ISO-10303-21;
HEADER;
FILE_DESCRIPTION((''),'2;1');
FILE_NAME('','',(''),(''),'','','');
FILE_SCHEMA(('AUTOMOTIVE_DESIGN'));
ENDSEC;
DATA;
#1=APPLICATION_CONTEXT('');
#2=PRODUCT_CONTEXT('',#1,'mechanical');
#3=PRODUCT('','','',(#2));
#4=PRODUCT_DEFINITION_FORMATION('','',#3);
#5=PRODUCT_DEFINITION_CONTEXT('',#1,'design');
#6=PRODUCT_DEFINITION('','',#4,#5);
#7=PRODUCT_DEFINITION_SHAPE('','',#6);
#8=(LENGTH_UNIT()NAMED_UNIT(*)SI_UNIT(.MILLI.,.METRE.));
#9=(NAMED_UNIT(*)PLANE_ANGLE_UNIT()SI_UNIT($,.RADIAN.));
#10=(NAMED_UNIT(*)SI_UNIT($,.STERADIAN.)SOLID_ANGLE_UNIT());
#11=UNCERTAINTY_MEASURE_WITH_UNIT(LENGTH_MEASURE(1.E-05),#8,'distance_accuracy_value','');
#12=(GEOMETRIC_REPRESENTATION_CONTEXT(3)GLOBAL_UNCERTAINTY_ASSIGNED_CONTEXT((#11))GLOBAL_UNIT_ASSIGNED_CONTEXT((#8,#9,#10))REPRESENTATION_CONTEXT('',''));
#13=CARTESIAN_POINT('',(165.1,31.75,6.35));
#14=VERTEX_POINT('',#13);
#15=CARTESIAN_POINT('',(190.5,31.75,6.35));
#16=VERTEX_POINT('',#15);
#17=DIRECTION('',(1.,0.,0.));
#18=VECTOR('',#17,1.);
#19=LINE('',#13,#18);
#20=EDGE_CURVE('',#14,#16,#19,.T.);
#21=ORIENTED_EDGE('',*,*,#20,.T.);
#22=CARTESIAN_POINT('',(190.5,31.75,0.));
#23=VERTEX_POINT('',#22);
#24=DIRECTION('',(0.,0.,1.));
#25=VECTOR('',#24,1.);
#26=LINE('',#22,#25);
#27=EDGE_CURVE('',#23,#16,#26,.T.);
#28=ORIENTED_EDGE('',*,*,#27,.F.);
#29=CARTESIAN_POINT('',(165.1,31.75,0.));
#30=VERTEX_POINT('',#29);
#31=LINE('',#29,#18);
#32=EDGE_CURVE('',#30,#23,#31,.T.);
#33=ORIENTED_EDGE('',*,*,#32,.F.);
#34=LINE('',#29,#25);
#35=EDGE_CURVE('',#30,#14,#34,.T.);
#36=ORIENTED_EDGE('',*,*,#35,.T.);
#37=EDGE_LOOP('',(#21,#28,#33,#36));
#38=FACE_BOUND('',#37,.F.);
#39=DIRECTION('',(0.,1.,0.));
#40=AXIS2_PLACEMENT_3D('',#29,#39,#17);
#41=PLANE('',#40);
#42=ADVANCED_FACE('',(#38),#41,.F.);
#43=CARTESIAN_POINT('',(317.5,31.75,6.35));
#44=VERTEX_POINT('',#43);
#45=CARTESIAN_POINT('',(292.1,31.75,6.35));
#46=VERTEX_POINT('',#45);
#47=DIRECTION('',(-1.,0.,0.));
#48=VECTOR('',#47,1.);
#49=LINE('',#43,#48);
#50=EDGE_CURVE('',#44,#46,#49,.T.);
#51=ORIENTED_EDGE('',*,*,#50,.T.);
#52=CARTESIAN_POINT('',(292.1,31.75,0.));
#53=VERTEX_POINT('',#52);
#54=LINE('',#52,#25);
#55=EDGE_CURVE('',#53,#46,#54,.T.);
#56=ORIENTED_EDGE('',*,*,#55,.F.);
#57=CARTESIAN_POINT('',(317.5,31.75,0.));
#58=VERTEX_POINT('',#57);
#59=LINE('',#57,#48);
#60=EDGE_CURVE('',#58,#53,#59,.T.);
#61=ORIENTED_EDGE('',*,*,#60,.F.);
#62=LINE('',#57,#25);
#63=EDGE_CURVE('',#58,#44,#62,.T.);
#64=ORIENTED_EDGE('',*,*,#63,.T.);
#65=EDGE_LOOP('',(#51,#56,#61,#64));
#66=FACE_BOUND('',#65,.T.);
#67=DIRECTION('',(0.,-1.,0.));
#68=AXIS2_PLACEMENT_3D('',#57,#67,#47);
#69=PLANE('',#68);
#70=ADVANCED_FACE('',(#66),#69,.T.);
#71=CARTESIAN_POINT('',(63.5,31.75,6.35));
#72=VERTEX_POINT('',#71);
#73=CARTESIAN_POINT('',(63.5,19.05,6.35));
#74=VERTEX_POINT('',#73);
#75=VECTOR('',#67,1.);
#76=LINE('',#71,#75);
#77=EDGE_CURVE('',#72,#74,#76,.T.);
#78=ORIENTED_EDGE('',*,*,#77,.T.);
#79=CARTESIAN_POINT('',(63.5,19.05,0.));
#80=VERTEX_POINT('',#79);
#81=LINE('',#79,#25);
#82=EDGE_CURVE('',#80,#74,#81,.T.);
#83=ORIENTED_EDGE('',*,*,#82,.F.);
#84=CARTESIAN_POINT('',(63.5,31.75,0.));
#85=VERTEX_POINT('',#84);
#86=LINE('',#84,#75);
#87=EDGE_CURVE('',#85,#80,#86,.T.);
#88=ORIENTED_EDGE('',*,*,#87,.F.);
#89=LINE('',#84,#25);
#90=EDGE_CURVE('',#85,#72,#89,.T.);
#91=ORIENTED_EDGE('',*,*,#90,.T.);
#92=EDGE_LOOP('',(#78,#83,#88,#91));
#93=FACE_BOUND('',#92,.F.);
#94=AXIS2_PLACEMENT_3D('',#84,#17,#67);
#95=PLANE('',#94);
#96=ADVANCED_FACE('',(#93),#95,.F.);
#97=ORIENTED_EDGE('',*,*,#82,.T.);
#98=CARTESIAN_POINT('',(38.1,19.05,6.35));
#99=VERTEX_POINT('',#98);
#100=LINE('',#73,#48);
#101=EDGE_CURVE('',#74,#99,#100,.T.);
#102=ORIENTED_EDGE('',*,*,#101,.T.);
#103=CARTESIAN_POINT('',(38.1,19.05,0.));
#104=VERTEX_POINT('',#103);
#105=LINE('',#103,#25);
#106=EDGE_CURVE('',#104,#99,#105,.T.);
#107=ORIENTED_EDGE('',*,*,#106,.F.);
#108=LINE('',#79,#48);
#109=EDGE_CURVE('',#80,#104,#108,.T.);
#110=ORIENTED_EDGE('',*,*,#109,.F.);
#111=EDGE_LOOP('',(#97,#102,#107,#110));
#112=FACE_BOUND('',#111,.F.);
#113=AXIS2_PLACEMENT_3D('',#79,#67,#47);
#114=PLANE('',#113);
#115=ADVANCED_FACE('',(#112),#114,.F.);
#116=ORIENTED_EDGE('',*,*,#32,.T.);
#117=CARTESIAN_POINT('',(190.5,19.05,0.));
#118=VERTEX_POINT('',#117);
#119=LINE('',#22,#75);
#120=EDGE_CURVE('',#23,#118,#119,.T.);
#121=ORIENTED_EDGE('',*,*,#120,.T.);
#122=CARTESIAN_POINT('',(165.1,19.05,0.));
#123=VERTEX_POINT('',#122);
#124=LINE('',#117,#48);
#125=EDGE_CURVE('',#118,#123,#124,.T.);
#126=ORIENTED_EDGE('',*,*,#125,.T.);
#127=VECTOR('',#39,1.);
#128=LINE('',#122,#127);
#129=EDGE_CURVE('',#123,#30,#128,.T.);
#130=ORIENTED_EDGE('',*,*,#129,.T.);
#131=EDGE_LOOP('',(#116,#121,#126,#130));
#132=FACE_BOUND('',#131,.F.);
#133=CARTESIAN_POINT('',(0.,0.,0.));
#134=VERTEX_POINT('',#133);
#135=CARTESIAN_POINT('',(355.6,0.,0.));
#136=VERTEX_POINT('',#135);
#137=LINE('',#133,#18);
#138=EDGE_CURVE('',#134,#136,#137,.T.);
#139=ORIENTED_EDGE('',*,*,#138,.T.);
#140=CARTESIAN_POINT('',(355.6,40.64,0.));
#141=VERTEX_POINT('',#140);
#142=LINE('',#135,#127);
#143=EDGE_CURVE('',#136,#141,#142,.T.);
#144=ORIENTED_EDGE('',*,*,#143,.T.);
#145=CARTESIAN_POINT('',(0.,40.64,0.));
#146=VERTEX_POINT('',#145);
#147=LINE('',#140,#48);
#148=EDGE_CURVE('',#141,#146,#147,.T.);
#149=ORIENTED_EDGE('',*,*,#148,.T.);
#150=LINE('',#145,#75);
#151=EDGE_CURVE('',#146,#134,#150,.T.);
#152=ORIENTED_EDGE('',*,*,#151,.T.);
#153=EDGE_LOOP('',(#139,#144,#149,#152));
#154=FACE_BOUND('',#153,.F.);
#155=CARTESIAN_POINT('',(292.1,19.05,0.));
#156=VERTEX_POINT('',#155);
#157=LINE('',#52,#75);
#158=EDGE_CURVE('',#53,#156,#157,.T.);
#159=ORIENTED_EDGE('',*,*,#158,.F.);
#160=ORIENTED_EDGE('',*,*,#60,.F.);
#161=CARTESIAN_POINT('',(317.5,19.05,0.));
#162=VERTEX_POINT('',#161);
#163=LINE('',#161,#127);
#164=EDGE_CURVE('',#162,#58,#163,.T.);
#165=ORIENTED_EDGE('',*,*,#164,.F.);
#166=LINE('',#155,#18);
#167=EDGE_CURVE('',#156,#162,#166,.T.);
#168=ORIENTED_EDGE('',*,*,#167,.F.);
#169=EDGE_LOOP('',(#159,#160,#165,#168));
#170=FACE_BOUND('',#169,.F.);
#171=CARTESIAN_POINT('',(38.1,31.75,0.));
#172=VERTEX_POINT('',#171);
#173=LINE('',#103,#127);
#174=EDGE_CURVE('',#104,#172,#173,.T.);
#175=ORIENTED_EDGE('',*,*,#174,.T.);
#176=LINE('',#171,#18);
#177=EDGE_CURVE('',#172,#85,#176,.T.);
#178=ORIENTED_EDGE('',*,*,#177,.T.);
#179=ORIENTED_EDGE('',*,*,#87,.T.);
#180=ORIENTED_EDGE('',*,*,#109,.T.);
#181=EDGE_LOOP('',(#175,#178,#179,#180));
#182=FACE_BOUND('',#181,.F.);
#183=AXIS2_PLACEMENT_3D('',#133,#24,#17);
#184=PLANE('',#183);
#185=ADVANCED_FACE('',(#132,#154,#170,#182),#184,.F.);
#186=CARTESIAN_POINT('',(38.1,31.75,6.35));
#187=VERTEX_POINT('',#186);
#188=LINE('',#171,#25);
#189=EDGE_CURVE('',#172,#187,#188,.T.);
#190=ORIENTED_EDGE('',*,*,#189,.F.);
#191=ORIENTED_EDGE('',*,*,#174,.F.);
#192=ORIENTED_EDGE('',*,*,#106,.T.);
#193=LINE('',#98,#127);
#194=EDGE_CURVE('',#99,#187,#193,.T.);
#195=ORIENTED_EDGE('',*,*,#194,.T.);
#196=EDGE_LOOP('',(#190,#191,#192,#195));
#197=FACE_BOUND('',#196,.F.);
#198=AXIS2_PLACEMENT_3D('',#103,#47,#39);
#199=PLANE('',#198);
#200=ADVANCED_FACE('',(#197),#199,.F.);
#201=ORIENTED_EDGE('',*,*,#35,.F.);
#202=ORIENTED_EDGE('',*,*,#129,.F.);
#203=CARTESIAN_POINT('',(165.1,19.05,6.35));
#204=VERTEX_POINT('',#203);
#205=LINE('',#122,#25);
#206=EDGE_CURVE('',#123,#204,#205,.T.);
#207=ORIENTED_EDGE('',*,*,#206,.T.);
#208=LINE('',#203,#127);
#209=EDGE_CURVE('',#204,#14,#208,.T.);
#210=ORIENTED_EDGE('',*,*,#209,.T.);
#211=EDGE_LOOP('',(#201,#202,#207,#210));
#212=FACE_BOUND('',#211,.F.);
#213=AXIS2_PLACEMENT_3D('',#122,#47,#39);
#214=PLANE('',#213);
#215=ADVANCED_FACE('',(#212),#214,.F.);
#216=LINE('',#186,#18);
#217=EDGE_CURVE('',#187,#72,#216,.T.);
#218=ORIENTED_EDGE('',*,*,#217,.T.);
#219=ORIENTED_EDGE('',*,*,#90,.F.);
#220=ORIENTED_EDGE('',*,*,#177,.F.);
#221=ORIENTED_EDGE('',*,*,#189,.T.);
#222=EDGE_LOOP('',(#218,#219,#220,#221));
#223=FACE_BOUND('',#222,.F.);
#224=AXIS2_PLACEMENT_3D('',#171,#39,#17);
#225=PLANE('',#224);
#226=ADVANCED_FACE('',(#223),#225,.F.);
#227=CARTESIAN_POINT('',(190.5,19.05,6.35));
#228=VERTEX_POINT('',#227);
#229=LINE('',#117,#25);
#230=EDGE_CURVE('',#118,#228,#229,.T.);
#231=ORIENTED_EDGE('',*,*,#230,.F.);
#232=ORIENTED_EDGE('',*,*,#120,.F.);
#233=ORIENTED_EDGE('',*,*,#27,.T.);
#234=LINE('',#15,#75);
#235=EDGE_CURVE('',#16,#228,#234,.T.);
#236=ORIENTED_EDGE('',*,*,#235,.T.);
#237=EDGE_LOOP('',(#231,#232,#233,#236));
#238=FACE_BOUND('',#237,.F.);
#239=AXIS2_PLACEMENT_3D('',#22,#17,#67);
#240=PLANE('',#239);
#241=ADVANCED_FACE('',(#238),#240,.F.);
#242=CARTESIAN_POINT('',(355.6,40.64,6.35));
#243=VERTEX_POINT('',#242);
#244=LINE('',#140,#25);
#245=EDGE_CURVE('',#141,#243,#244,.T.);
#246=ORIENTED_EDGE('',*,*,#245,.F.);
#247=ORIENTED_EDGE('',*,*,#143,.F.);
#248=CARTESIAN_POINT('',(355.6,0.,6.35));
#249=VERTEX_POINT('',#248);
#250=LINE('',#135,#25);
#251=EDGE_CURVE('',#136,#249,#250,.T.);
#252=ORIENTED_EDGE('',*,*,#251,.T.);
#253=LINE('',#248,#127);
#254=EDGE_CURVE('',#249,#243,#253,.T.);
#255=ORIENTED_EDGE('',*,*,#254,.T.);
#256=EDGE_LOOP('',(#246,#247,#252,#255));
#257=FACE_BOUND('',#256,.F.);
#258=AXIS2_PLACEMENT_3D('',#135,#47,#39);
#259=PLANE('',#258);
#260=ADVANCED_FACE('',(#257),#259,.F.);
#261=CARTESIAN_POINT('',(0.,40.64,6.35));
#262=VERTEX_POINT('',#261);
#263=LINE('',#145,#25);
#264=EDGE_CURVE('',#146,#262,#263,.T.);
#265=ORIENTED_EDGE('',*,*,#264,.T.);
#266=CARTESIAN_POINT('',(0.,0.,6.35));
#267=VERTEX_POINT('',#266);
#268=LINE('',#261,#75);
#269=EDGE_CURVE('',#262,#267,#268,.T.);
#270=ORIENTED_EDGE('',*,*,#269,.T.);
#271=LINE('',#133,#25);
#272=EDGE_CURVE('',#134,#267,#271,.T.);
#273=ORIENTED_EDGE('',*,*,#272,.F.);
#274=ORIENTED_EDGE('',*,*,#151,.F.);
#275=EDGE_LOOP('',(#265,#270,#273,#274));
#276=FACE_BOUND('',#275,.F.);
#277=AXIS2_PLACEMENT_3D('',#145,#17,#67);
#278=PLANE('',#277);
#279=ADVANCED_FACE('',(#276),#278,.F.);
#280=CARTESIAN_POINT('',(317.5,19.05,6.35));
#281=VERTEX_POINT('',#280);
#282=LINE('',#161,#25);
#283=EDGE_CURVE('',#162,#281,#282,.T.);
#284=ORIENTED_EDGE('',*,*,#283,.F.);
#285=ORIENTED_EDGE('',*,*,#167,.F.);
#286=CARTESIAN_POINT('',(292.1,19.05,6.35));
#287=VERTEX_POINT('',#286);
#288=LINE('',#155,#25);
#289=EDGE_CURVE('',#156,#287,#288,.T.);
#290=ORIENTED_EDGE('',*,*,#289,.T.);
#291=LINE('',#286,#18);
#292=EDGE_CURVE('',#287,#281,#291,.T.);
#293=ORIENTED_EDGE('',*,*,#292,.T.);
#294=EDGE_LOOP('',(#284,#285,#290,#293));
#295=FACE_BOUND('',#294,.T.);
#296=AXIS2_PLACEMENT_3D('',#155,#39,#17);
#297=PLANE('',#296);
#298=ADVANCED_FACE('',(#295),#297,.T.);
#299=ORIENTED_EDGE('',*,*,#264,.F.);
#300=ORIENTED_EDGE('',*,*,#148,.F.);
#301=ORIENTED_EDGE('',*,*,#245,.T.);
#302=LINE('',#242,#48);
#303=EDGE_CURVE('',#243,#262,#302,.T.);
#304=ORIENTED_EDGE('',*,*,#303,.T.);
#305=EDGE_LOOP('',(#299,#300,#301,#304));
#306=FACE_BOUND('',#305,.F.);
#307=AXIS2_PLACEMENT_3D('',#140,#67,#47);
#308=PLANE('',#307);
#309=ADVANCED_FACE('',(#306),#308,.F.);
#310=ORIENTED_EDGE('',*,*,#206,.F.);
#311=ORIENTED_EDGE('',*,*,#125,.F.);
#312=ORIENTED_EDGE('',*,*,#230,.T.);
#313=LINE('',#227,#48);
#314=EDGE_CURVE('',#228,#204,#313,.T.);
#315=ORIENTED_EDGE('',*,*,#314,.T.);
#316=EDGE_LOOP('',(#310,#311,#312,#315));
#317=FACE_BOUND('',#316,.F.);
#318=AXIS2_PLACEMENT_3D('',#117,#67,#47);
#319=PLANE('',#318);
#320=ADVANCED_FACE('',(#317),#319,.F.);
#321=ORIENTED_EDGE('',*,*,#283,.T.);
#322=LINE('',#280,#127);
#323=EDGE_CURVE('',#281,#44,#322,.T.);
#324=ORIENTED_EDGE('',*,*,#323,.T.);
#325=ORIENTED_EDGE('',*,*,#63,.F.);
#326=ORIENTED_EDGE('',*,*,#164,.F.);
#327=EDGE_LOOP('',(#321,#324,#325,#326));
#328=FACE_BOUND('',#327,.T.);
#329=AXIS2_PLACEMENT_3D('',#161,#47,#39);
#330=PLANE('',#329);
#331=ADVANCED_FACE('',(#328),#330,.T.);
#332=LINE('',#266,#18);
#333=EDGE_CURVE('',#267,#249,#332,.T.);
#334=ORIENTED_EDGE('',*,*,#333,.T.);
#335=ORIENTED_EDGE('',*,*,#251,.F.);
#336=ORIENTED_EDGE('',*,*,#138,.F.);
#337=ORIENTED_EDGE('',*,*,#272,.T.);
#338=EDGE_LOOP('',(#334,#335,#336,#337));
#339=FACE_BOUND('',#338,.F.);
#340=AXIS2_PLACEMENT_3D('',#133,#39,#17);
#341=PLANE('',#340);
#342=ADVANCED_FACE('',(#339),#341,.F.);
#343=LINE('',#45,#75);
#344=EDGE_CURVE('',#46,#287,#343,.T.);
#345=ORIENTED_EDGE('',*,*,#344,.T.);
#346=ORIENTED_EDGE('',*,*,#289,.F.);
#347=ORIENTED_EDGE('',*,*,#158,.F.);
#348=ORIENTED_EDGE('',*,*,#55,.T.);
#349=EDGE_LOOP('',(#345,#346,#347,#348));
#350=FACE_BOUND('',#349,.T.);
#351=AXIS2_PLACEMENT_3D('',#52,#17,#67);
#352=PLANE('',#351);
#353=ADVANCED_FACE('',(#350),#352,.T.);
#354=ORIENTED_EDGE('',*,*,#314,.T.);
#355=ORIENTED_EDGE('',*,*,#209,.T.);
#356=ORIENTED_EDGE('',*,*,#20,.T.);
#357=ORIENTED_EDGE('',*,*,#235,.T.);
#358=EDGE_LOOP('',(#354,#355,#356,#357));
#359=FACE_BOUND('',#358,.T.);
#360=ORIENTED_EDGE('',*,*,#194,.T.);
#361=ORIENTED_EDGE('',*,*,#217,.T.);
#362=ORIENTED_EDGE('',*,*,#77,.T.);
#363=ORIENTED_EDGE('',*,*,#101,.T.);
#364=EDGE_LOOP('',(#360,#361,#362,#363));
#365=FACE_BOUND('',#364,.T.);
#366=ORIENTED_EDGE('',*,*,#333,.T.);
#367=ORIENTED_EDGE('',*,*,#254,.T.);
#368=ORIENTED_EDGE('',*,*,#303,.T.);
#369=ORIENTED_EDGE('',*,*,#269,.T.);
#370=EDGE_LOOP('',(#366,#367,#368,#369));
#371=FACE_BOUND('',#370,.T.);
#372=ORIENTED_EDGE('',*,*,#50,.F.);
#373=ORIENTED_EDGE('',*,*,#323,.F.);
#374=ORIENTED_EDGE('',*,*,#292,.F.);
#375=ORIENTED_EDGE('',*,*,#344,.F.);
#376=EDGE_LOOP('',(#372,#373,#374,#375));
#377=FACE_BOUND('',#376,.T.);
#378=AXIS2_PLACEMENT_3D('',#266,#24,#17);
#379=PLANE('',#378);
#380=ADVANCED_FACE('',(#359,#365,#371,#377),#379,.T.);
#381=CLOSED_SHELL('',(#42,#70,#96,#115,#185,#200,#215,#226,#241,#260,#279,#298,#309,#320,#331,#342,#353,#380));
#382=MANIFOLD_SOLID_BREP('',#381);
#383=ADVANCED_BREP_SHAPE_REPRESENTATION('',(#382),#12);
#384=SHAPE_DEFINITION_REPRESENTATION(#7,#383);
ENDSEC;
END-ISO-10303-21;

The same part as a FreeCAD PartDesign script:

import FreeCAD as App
import Part
import Sketcher
Q = App.Units.Quantity


def add_polygon(sketch, points):
    """Adds a closed chain of lines whose ends are joined by coincident constraints."""
    first, n = sketch.GeometryCount, len(points)
    for a, b in zip(points, points[1:] + points[:1]):
        sketch.addGeometry(Part.LineSegment(App.Vector(*a, 0), App.Vector(*b, 0)), False)
    for i in range(n):
        sketch.addConstraint(Sketcher.Constraint("Coincident", first + i, 2, first + (i + 1) % n, 1))

doc = App.newDocument("Part")
body = doc.addObject("PartDesign::Body", "Body")

# Sketch on XY plane
sketch1 = doc.addObject("Sketcher::SketchObject", "Sketch")
body.addObject(sketch1)
sketch1.AttachmentSupport = (doc.XY_Plane, [""])
sketch1.MapMode = "FlatFace"
add_polygon(sketch1, [(0, 41), (0, 0), (356, 0), (356, 41)])  # lines 0-3
add_polygon(sketch1, [(38, 19), (38, 32), (64, 32), (64, 19)])  # lines 4-7
add_polygon(sketch1, [(165, 19), (165, 32), (190, 32), (190, 19)])  # lines 8-11
add_polygon(sketch1, [(292, 32), (318, 32), (318, 19), (292, 19)])  # lines 12-15
sketch1.addConstraint([
    Sketcher.Constraint("Vertical", 0),
    Sketcher.Constraint("Horizontal", 1),
    Sketcher.Constraint("Vertical", 2),
    Sketcher.Constraint("Horizontal", 3),
    Sketcher.Constraint("Vertical", 4),
    Sketcher.Constraint("Horizontal", 5),
    Sketcher.Constraint("Vertical", 6),
    Sketcher.Constraint("Horizontal", 7),
    Sketcher.Constraint("Vertical", 8),
    Sketcher.Constraint("Horizontal", 9),
    Sketcher.Constraint("Vertical", 10),
    Sketcher.Constraint("Horizontal", 11),
    Sketcher.Constraint("Horizontal", 12),
    Sketcher.Constraint("Vertical", 13),
    Sketcher.Constraint("Horizontal", 14),
    Sketcher.Constraint("Vertical", 15),
    Sketcher.Constraint("Coincident", 0, 2, -1, 1),
    Sketcher.Constraint("Horizontal", 5, 2, 8, 2),
    Sketcher.Constraint("Horizontal", 7, 2, 10, 2),
    Sketcher.Constraint("Horizontal", 9, 2, 12, 2),
    Sketcher.Constraint("Horizontal", 11, 2, 13, 2),
    Sketcher.Constraint("Equal", 7, 9),
    Sketcher.Constraint("Equal", 11, 12),
    Sketcher.Constraint("DistanceX", 1, 1, 1, 2, Q("14 in")),
    Sketcher.Constraint("DistanceX", 5, 1, 5, 2, Q("1 in")),
    Sketcher.Constraint("DistanceY", 0, 2, 0, 1, Q("1.6 in")),
    Sketcher.Constraint("DistanceY", 4, 1, 4, 2, Q("0.5 in")),
    Sketcher.Constraint("DistanceX", -1, 1, 4, 2, Q("1.5 in")),
    Sketcher.Constraint("DistanceX", -1, 1, 8, 2, Q("6.5 in")),
    Sketcher.Constraint("DistanceX", 12, 2, 2, 2, Q("1.5 in")),
    Sketcher.Constraint("DistanceY", 4, 2, 3, 2, Q("0.35 in")),
])
pad1 = doc.addObject("PartDesign::Pad", "Pad")
body.addObject(pad1)
pad1.Profile = sketch1
pad1.Length = Q("0.25 in")

doc.recompute()
